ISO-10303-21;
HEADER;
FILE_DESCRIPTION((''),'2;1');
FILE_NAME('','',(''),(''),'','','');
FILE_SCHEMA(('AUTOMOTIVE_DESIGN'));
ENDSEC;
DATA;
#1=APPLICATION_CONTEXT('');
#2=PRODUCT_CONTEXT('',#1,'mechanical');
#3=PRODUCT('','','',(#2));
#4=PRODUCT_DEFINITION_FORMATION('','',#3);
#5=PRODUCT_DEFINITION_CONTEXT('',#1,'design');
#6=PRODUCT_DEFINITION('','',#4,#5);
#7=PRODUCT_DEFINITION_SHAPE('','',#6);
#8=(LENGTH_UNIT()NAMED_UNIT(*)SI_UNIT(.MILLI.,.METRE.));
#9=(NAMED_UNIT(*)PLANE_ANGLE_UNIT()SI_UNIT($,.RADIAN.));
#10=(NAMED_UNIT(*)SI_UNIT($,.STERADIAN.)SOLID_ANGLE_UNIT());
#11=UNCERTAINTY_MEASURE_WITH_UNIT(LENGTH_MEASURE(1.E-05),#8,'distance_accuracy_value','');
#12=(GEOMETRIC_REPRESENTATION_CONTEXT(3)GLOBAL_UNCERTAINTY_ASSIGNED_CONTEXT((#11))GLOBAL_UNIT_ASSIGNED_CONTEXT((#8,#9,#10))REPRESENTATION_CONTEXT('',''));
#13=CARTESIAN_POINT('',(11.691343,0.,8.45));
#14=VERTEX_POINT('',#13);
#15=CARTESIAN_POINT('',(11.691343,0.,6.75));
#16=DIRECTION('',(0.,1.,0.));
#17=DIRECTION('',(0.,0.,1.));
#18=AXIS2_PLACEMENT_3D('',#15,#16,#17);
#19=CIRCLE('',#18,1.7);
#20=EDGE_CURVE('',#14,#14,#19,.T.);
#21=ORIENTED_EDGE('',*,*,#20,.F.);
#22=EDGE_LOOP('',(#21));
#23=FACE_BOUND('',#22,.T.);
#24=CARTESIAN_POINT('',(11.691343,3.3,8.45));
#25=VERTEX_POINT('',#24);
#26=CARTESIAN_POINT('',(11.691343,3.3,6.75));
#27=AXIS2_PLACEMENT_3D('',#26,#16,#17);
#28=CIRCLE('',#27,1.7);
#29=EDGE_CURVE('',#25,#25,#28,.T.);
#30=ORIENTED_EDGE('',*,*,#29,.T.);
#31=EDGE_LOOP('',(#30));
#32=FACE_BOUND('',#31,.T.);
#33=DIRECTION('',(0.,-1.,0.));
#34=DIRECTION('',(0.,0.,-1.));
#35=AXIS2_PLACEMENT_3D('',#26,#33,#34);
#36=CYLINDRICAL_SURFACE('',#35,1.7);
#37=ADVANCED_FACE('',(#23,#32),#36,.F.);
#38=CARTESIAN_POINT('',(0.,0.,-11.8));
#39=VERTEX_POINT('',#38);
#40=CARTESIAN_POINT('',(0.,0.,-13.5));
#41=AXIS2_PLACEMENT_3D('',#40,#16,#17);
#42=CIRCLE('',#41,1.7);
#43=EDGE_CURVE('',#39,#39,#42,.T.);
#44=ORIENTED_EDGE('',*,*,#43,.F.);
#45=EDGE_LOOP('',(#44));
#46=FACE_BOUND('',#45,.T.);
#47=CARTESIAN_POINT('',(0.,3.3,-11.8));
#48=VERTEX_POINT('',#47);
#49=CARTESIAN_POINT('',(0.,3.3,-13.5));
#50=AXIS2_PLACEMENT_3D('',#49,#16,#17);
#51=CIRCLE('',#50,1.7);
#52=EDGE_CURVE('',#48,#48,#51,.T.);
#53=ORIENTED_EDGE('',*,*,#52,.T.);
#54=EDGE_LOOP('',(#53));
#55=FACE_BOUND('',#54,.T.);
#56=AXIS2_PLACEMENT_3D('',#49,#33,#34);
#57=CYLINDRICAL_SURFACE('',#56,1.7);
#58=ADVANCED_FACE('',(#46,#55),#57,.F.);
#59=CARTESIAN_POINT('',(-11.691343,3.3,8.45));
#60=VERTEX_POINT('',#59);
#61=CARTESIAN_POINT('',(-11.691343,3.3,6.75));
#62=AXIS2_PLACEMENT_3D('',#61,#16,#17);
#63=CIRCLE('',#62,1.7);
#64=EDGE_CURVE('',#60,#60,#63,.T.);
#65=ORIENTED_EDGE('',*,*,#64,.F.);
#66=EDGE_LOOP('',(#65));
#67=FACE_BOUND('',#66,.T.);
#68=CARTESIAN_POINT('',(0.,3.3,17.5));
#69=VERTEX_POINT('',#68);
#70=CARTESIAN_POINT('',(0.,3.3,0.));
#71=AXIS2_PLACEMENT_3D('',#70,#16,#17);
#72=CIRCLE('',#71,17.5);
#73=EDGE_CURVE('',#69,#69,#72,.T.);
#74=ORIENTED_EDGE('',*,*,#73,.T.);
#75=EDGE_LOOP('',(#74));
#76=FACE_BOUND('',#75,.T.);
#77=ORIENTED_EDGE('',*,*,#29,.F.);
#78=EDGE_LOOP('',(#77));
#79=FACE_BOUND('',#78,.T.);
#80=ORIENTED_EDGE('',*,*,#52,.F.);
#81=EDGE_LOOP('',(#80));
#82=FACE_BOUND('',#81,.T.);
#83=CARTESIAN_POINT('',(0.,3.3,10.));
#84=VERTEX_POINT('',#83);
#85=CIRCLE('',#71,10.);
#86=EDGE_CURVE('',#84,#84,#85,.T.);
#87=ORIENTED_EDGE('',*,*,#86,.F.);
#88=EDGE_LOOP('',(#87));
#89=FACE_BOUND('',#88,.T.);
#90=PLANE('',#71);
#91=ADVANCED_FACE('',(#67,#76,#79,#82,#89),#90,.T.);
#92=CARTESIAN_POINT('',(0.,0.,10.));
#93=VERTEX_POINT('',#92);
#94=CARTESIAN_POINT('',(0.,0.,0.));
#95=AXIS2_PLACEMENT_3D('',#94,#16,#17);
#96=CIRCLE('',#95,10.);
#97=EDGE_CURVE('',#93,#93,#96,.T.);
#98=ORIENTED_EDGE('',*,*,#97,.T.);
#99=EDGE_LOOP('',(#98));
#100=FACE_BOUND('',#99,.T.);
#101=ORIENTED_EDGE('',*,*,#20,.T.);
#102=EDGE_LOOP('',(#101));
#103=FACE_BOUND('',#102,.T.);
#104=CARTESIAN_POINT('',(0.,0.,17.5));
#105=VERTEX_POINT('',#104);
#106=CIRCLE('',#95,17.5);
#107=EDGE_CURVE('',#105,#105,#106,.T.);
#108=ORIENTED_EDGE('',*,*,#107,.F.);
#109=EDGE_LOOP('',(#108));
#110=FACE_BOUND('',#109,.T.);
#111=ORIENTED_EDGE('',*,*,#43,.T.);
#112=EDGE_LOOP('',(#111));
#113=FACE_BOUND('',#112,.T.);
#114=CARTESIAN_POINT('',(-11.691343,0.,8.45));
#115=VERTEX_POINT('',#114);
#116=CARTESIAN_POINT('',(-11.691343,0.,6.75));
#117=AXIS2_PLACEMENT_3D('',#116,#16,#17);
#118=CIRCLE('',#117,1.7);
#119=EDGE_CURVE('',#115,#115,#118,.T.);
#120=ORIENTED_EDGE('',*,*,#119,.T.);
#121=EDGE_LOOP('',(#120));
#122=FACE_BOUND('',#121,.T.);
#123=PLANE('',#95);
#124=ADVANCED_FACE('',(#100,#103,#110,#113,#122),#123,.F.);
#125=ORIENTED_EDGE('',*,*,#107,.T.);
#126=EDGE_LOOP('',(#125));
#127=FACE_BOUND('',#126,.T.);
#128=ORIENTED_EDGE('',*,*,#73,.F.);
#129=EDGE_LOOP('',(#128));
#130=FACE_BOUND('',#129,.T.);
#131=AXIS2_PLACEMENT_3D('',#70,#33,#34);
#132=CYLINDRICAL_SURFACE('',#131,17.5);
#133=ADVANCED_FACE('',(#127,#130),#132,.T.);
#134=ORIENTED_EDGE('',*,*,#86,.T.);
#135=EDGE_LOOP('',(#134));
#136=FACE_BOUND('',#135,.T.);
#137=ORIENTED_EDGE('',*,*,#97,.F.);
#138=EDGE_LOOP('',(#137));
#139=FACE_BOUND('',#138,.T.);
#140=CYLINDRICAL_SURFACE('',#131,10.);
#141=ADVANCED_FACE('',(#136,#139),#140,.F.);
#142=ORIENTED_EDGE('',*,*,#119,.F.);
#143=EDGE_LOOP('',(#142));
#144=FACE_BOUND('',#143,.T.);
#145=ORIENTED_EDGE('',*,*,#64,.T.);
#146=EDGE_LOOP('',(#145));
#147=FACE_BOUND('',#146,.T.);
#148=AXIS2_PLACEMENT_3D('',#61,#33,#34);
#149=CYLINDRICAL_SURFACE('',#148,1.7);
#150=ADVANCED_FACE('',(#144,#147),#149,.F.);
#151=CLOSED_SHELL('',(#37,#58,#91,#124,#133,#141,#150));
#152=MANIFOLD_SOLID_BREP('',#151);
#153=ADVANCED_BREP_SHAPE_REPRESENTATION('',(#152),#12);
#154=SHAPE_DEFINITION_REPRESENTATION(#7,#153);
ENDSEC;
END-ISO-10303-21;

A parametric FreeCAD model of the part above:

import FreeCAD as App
import Part
import Sketcher

doc = App.newDocument("Part")
params = doc.addObject("Spreadsheet::Sheet", "Params")
for row, (alias, value) in enumerate([
    ("sketch1_diameter", "35 mm"),
    ("sketch1_diameter2", "20 mm"),
    ("sketch1_diameter3", "3.4 mm"),
    ("pad1_length", "3.3 mm"),
], start=1):
    params.set(f"A{row}", alias)
    params.set(f"B{row}", "=" + value)
    params.setAlias(f"B{row}", alias)

body = doc.addObject("PartDesign::Body", "Body")

sketch1 = body.newObject("Sketcher::SketchObject", "Sketch")
sketch1.AttachmentSupport = (doc.getObject("XZ_Plane"), [""])
sketch1.MapMode = "FlatFace"
sketch1.addGeometry([
    Part.Circle(App.Vector(0, 0, 0), App.Vector(0, 0, 1), 17.5),
    Part.Circle(App.Vector(0, -13.5, 0), App.Vector(0, 0, 1), 1.7),
    Part.Circle(App.Vector(-11.7, 6.8, 0), App.Vector(0, 0, 1), 1.7),
    Part.Circle(App.Vector(0, 0, 0), App.Vector(0, 0, 1), 10),
    Part.Circle(App.Vector(11.7, 6.8, 0), App.Vector(0, 0, 1), 1.7),
], False)
sketch1.addConstraint([
    Sketcher.Constraint("Coincident", 0, 3, -1, 1),
    Sketcher.Constraint("Coincident", 3, 3, -1, 1),
    Sketcher.Constraint("Equal", 1, 2),
    Sketcher.Constraint("Equal", 2, 4),
    Sketcher.Constraint("Symmetric", 2, 3, 4, 3, -2),
    Sketcher.Constraint("PointOnObject", 1, 3, -2),
    Sketcher.Constraint("Diameter", 0, 35.0),
    Sketcher.Constraint("Diameter", 3, 20.0),
    Sketcher.Constraint("Diameter", 1, 3.4),
    Sketcher.Constraint("DistanceY", 1, 3, -1, 1, 13.5),
    Sketcher.Constraint("DistanceY", -1, 1, 2, 3, 6.75),
    Sketcher.Constraint("DistanceX", 2, 3, -1, 1, 11.691343),
])
sketch1.setExpression("Constraints[6]", "Params.sketch1_diameter")
sketch1.setExpression("Constraints[7]", "Params.sketch1_diameter2")
sketch1.setExpression("Constraints[8]", "Params.sketch1_diameter3")
pad1 = body.newObject("PartDesign::Pad", "Pad")
pad1.Profile = sketch1
pad1.setExpression("Length", "Params.pad1_length")
pad1.Reversed = True

doc.recompute()
